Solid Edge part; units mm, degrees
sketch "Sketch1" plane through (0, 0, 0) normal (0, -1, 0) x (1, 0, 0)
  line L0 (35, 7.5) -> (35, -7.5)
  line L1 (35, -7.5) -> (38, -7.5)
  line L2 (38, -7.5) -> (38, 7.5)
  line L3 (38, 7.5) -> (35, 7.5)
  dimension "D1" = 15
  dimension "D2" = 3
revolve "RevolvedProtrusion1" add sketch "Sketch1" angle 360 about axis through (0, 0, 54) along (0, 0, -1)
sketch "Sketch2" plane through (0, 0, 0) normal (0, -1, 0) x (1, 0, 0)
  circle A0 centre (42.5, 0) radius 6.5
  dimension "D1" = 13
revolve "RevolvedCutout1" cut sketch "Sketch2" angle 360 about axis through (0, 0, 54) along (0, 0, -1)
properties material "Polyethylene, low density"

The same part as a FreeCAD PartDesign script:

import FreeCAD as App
import Part
import Sketcher
from FreeCAD import Vector


def add_polygon(sketch, points):
    """Adds a closed chain of lines whose ends are joined by coincident constraints."""
    first, n = sketch.GeometryCount, len(points)
    for a, b in zip(points, points[1:] + points[:1]):
        sketch.addGeometry(Part.LineSegment(App.Vector(*a, 0), App.Vector(*b, 0)), False)
    for i in range(n):
        sketch.addConstraint(Sketcher.Constraint("Coincident", first + i, 2, first + (i + 1) % n, 1))

doc = App.newDocument("Part")
body = doc.addObject("PartDesign::Body", "Body")

sketch1 = doc.addObject("Sketcher::SketchObject", "Sketch")
body.addObject(sketch1)
sketch1.AttachmentSupport = (doc.XZ_Plane, [""])
sketch1.MapMode = "FlatFace"
add_polygon(sketch1, [(38, 7.5), (35, 7.5), (35, -7.5), (38, -7.5)])
sketch1.addConstraint(Sketcher.Constraint("Horizontal", 0))
sketch1.addConstraint(Sketcher.Constraint("Vertical", 1))
sketch1.addConstraint(Sketcher.Constraint("Horizontal", 2))
sketch1.addConstraint(Sketcher.Constraint("Vertical", 3))
sketch1.addConstraint(Sketcher.Constraint("DistanceX", -1, 1, 2, 2, 38.0))
sketch1.addConstraint(Sketcher.Constraint("DistanceX", 0, 2, 0, 1, 3.0))
sketch1.addConstraint(Sketcher.Constraint("DistanceY", 1, 2, 1, 1, 15.0))
sketch1.addConstraint(Sketcher.Constraint("DistanceY", -1, 1, 0, 2, 7.5))
revolution = doc.addObject("PartDesign::Revolution", "Revolution")
body.addObject(revolution)
revolution.Profile = sketch1
revolution.ReferenceAxis = (sketch1, ["V_Axis"])
revolution.Angle = 360

sketch2 = doc.addObject("Sketcher::SketchObject", "Sketch001")
body.addObject(sketch2)
sketch2.AttachmentSupport = (doc.XZ_Plane, [""])
sketch2.MapMode = "FlatFace"
sketch2.addGeometry(Part.Circle(Vector(42.5, 0, 0), Vector(0, 0, 1), 6.5), False)
sketch2.addConstraint(Sketcher.Constraint("PointOnObject", 0, 3, -1))
sketch2.addConstraint(Sketcher.Constraint("Diameter", 0, 13.0))
sketch2.addConstraint(Sketcher.Constraint("DistanceX", -1, 1, 0, 3, 42.5))
groove = doc.addObject("PartDesign::Groove", "Groove")
body.addObject(groove)
groove.Profile = sketch2
groove.ReferenceAxis = (sketch2, ["V_Axis"])
groove.Angle = 360

doc.recompute()
